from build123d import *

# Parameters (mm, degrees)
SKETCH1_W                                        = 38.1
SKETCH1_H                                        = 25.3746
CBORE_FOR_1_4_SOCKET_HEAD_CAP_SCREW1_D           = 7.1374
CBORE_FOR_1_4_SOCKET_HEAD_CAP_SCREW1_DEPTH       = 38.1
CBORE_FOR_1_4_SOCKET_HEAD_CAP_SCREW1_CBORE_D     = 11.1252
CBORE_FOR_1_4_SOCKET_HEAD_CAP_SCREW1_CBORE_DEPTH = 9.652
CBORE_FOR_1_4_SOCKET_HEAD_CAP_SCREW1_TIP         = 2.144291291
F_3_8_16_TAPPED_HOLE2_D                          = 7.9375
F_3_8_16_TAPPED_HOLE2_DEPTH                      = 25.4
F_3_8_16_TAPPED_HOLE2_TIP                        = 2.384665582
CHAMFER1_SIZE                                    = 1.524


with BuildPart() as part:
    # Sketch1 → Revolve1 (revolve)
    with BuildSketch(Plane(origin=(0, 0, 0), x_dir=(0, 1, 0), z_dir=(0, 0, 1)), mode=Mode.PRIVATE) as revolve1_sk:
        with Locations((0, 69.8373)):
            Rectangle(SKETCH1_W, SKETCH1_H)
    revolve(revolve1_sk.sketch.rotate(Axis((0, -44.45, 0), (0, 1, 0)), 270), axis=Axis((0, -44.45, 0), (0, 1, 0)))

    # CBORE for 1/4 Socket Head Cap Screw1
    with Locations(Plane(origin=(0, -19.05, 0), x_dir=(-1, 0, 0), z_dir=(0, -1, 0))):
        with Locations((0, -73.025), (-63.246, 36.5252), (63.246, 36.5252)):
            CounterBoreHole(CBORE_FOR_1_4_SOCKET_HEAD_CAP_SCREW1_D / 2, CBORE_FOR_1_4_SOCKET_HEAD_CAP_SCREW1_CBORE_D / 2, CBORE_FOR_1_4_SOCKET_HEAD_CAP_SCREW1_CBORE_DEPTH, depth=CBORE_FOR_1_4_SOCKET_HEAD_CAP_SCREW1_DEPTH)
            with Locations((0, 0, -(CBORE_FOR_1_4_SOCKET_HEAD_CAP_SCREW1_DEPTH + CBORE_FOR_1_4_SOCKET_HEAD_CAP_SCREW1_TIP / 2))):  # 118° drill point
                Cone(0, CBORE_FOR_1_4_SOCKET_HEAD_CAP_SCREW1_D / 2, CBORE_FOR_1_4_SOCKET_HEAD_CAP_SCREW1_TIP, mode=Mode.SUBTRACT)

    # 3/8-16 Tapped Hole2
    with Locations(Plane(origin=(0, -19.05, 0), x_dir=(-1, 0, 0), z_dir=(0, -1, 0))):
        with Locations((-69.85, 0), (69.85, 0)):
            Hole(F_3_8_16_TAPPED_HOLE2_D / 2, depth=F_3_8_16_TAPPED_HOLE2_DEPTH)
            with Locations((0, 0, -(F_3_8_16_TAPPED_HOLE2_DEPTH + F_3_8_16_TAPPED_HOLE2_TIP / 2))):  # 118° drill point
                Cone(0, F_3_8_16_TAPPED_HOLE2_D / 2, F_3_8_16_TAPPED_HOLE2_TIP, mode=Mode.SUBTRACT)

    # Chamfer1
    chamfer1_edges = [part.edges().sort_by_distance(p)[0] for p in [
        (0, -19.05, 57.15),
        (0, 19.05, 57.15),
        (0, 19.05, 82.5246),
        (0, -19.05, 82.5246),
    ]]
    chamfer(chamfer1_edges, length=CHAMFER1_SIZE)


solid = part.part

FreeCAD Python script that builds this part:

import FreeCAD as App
import Part
import Sketcher
Q = App.Units.Quantity


def edges_at(feature, points):
    """Names of the edges that pass closest to the given points."""
    edges = feature.Shape.Edges
    near = lambda p: min(range(len(edges)), key=lambda i: edges[i].distToShape(Part.Vertex(*p))[0])
    return sorted({f"Edge{near(p) + 1}" for p in points})

doc = App.newDocument("Part")
body = doc.addObject("PartDesign::Body", "Body")

sketch1 = body.newObject("Sketcher::SketchObject", "Sketch")
sketch1.AttachmentSupport = (doc.getObject("XY_Plane"), [""])
sketch1.MapMode = "FlatFace"
sketch1.addGeometry(Part.LineSegment(App.Vector(-83, -19, 0), App.Vector(-57, -19, 0)), False)
sketch1.addGeometry(Part.LineSegment(App.Vector(-57, -19, 0), App.Vector(-57, 19, 0)), False)
sketch1.addGeometry(Part.LineSegment(App.Vector(-57, 19, 0), App.Vector(-83, 19, 0)), False)
sketch1.addGeometry(Part.LineSegment(App.Vector(-83, 19, 0), App.Vector(-83, -19, 0)), False)
sketch1.addConstraint(Sketcher.Constraint("Coincident", 0, 2, 1, 1))
sketch1.addConstraint(Sketcher.Constraint("Coincident", 1, 2, 2, 1))
sketch1.addConstraint(Sketcher.Constraint("Coincident", 2, 2, 3, 1))
sketch1.addConstraint(Sketcher.Constraint("Coincident", 3, 2, 0, 1))
sketch1.addConstraint(Sketcher.Constraint("Horizontal", 0))
sketch1.addConstraint(Sketcher.Constraint("Vertical", 1))
sketch1.addConstraint(Sketcher.Constraint("Horizontal", 2))
sketch1.addConstraint(Sketcher.Constraint("Vertical", 3))
sketch1.addConstraint(Sketcher.Constraint("DistanceY", 1, 1, 1, 2, Q("1.5 in")))
sketch1.addConstraint(Sketcher.Constraint("DistanceX", 0, 1, 0, 2, Q("0.999 in")))
sketch1.addConstraint(Sketcher.Constraint("DistanceX", 0, 2, -1, 1, Q("2.25 in")))
sketch1.addConstraint(Sketcher.Constraint("DistanceY", 0, 2, -1, 1, Q("0.75 in")))
revolution = body.newObject("PartDesign::Revolution", "Revolution")
revolution.Profile = sketch1
revolution.ReferenceAxis = (sketch1, ["V_Axis"])
revolution.Angle = 360

sketch2 = body.newObject("Sketcher::SketchObject", "Sketch001")
sketch2.AttachmentSupport = (doc.getObject("XZ_Plane"), [""])
sketch2.MapMode = "FlatFace"
sketch2.AttachmentOffset = App.Placement(App.Vector(0, 0, 0.75 * 25.4), App.Rotation())
sketch2.addGeometry(Part.Circle(App.Vector(0, 73, 0), App.Vector(0, 0, 1), 3.6), False)
sketch2.addGeometry(Part.Circle(App.Vector(63.2, -36.5, 0), App.Vector(0, 0, 1), 3.6), False)
sketch2.addGeometry(Part.Circle(App.Vector(-63.2, -36.5, 0), App.Vector(0, 0, 1), 3.6), False)
sketch2.addConstraint(Sketcher.Constraint("Equal", 0, 1))
sketch2.addConstraint(Sketcher.Constraint("Equal", 1, 2))
sketch2.addConstraint(Sketcher.Constraint("Symmetric", 1, 3, 2, 3, -2))
sketch2.addConstraint(Sketcher.Constraint("PointOnObject", 0, 3, -2))
sketch2.addConstraint(Sketcher.Constraint("Diameter", 0, Q("0.281 in")))
sketch2.addConstraint(Sketcher.Constraint("DistanceX", -1, 1, 1, 3, Q("2.49 in")))
sketch2.addConstraint(Sketcher.Constraint("DistanceY", -1, 1, 0, 3, Q("2.875 in")))
sketch2.addConstraint(Sketcher.Constraint("DistanceY", 1, 3, -1, 1, Q("1.438 in")))
doc.recompute()
hole = body.newObject("PartDesign::Hole", "Hole")
hole.Profile = sketch2
hole.ThreadType = "None"
hole.Diameter = Q("0.281 in")
hole.DepthType = "Dimension"
hole.Depth = Q("1.5 in")
hole.DrillPoint = "Angled"
hole.DrillPointAngle = 118
hole.HoleCutType = "Counterbore"
hole.HoleCutDiameter = Q("0.438 in")
hole.HoleCutDepth = Q("0.38 in")

sketch3 = body.newObject("Sketcher::SketchObject", "Sketch002")
sketch3.AttachmentSupport = (doc.getObject("XZ_Plane"), [""])
sketch3.MapMode = "FlatFace"
sketch3.AttachmentOffset = App.Placement(App.Vector(0, 0, 0.75 * 25.4), App.Rotation())
sketch3.addGeometry(Part.Circle(App.Vector(69.8, 0, 0), App.Vector(0, 0, 1), 4), False)
sketch3.addGeometry(Part.Circle(App.Vector(-69.8, 0, 0), App.Vector(0, 0, 1), 4), False)
sketch3.addConstraint(Sketcher.Constraint("Equal", 0, 1))
sketch3.addConstraint(Sketcher.Constraint("Symmetric", 0, 3, 1, 3, -1, 1))
sketch3.addConstraint(Sketcher.Constraint("PointOnObject", 0, 3, -1))
sketch3.addConstraint(Sketcher.Constraint("Diameter", 0, Q("0.3125 in")))
sketch3.addConstraint(Sketcher.Constraint("DistanceX", 1, 3, 0, 3, Q("5.5 in")))
doc.recompute()
hole2 = body.newObject("PartDesign::Hole", "Hole001")
hole2.Profile = sketch3
hole2.ThreadType = "None"
hole2.Diameter = Q("0.3125 in")
hole2.DepthType = "Dimension"
hole2.Depth = Q("1 in")
hole2.DrillPoint = "Angled"
hole2.DrillPointAngle = 118
doc.recompute()

chamfer = body.newObject("PartDesign::Chamfer", "Chamfer")
chamfer.Base = (hole2, edges_at(hole2, [
    (0, -19.05, 57.15),
    (0, 19.05, 57.15),
    (0, 19.05, 82.525),
    (0, -19.05, 82.525),
]))
chamfer.Size = Q("0.06 in")

doc.recompute()
